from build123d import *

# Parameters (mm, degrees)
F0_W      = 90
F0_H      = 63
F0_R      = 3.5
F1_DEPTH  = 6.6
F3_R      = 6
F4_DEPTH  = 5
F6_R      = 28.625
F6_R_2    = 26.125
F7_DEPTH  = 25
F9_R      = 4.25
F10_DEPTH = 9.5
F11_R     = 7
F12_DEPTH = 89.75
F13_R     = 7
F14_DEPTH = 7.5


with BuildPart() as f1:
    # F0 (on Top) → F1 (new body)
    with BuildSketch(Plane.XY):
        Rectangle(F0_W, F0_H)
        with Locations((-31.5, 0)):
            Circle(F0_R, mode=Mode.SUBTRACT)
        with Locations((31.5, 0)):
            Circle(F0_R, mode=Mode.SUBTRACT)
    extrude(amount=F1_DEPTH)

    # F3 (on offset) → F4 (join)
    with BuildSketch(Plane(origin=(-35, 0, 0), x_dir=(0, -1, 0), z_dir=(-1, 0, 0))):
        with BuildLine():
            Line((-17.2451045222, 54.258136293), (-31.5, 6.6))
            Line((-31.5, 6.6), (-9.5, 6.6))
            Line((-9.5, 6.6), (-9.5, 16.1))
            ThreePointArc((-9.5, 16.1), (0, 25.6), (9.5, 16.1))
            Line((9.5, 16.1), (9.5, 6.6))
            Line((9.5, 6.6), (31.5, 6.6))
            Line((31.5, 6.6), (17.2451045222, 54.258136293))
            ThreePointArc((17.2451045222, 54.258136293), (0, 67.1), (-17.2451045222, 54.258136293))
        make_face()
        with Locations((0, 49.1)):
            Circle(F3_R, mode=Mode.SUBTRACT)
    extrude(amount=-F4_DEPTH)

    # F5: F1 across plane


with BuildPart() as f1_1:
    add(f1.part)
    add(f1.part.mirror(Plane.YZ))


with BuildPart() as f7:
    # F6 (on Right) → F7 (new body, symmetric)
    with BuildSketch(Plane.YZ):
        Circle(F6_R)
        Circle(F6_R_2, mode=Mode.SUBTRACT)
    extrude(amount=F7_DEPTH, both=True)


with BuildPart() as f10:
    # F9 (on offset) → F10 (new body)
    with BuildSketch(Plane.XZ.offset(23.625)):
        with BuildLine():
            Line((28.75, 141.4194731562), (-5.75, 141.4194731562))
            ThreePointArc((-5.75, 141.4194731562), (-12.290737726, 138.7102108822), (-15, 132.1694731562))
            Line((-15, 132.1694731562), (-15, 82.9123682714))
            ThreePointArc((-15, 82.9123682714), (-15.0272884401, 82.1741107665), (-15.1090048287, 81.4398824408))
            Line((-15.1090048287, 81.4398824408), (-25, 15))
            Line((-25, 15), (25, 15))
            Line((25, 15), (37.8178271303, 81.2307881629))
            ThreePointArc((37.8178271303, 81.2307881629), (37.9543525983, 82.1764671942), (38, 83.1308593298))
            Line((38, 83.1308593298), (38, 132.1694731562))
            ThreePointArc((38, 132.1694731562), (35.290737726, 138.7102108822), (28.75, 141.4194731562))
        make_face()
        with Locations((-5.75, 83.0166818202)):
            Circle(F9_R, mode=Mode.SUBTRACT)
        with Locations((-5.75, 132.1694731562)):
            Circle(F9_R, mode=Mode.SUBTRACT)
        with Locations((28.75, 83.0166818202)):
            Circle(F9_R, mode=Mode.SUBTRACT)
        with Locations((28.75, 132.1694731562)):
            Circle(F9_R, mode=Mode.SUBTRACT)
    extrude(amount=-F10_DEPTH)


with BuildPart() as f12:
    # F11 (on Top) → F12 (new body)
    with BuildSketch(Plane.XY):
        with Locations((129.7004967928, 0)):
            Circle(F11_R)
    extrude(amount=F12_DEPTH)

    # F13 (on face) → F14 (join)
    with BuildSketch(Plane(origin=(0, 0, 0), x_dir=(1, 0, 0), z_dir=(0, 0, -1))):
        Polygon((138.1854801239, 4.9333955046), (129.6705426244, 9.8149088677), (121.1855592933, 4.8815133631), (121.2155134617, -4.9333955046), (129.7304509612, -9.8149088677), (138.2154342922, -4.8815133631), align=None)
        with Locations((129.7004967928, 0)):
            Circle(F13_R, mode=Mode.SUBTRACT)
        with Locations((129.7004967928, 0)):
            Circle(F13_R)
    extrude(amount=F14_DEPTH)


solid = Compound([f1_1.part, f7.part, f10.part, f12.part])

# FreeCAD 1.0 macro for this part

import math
import FreeCAD as App
import Part
import Sketcher
Q = App.Units.Quantity

doc = App.newDocument("Part")
body = doc.addObject("PartDesign::Body", "Body")

sketch1 = doc.addObject("Sketcher::SketchObject", "Sketch")
body.addObject(sketch1)
sketch1.AttachmentSupport = (doc.XY_Plane, [""])
sketch1.MapMode = "FlatFace"
sketch1.addGeometry(Part.LineSegment(App.Vector(-45, 31.5, 0), App.Vector(-45, -31.5, 0)), False)
sketch1.addGeometry(Part.LineSegment(App.Vector(-45, -31.5, 0), App.Vector(45, -31.5, 0)), False)
sketch1.addGeometry(Part.LineSegment(App.Vector(45, -31.5, 0), App.Vector(45, 31.5, 0)), False)
sketch1.addGeometry(Part.LineSegment(App.Vector(45, 31.5, 0), App.Vector(-45, 31.5, 0)), False)
sketch1.addGeometry(Part.Circle(App.Vector(-31.5, 0, 0), App.Vector(0, 0, 1), 3.5), False)
sketch1.addGeometry(Part.Circle(App.Vector(31.5, 0, 0), App.Vector(0, 0, 1), 3.5), False)
sketch1.addConstraint(Sketcher.Constraint("Coincident", 0, 2, 1, 1))
sketch1.addConstraint(Sketcher.Constraint("Coincident", 1, 2, 2, 1))
sketch1.addConstraint(Sketcher.Constraint("Coincident", 2, 2, 3, 1))
sketch1.addConstraint(Sketcher.Constraint("Coincident", 3, 2, 0, 1))
sketch1.addConstraint(Sketcher.Constraint("Vertical", 0))
sketch1.addConstraint(Sketcher.Constraint("Horizontal", 1))
sketch1.addConstraint(Sketcher.Constraint("Vertical", 2))
sketch1.addConstraint(Sketcher.Constraint("Horizontal", 3))
sketch1.addConstraint(Sketcher.Constraint("Equal", 4, 5))
sketch1.addConstraint(Sketcher.Constraint("Symmetric", 4, 3, 5, 3, -1, 1))
sketch1.addConstraint(Sketcher.Constraint("Symmetric", 0, 2, 2, 2, -1, 1))
sketch1.addConstraint(Sketcher.Constraint("PointOnObject", 4, 3, -1))
sketch1.addConstraint(Sketcher.Constraint("Diameter", 4, Q("7 mm")))
sketch1.addConstraint(Sketcher.Constraint("DistanceX", 1, 1, 1, 2, Q("90 mm")))
sketch1.addConstraint(Sketcher.Constraint("DistanceY", 0, 2, 0, 1, Q("63 mm")))
sketch1.addConstraint(Sketcher.Constraint("DistanceX", 4, 3, 5, 3, Q("63 mm")))
pad1 = doc.addObject("PartDesign::Pad", "Pad")
body.addObject(pad1)
pad1.Profile = sketch1
pad1.Length = 6.6

sketch2 = doc.addObject("Sketcher::SketchObject", "Sketch001")
body.addObject(sketch2)
sketch2.AttachmentSupport = (doc.YZ_Plane, [""])
sketch2.MapMode = "FlatFace"
sketch2.AttachmentOffset = App.Placement(App.Vector(0, 0, -35), App.Rotation())
sketch2.addGeometry(Part.LineSegment(App.Vector(17, 54, 0), App.Vector(32, 7, 0)), False)
sketch2.addGeometry(Part.LineSegment(App.Vector(32, 7, 0), App.Vector(10, 7, 0)), False)
sketch2.addGeometry(Part.LineSegment(App.Vector(10, 7, 0), App.Vector(10, 16, 0)), False)
sketch2.addGeometry(Part.ArcOfCircle(Part.Circle(App.Vector(0, 16, 0), App.Vector(0, 0, 1), 10), math.radians(0), math.radians(180)), False)
sketch2.addGeometry(Part.LineSegment(App.Vector(-10, 16, 0), App.Vector(-10, 7, 0)), False)
sketch2.addGeometry(Part.LineSegment(App.Vector(-10, 7, 0), App.Vector(-32, 7, 0)), False)
sketch2.addGeometry(Part.LineSegment(App.Vector(-32, 7, 0), App.Vector(-17, 54, 0)), False)
sketch2.addGeometry(Part.ArcOfCircle(Part.Circle(App.Vector(0, 49, 0), App.Vector(0, 0, 1), 18), math.radians(17), math.radians(163)), False)
sketch2.addGeometry(Part.Circle(App.Vector(0, 49, 0), App.Vector(0, 0, 1), 6), False)
sketch2.addConstraint(Sketcher.Constraint("Coincident", 0, 2, 1, 1))
sketch2.addConstraint(Sketcher.Constraint("Coincident", 1, 2, 2, 1))
sketch2.addConstraint(Sketcher.Constraint("Tangent", 2, 2, 3, 1))
sketch2.addConstraint(Sketcher.Constraint("Tangent", 3, 2, 4, 1))
sketch2.addConstraint(Sketcher.Constraint("Coincident", 4, 2, 5, 1))
sketch2.addConstraint(Sketcher.Constraint("Coincident", 5, 2, 6, 1))
sketch2.addConstraint(Sketcher.Constraint("Tangent", 6, 2, 7, 2))
sketch2.addConstraint(Sketcher.Constraint("Tangent", 7, 1, 0, 1))
sketch2.addConstraint(Sketcher.Constraint("Horizontal", 1))
sketch2.addConstraint(Sketcher.Constraint("Vertical", 2))
sketch2.addConstraint(Sketcher.Constraint("Vertical", 4))
sketch2.addConstraint(Sketcher.Constraint("Horizontal", 5))
sketch2.addConstraint(Sketcher.Constraint("Coincident", 8, 3, 7, 3))
sketch2.addConstraint(Sketcher.Constraint("Symmetric", 1, 2, 4, 2, -2))
sketch2.addConstraint(Sketcher.Constraint("Symmetric", 6, 2, 7, 1, -2))
sketch2.addConstraint(Sketcher.Constraint("Diameter", 8, Q("12 mm")))
sketch2.addConstraint(Sketcher.Constraint("Radius", 7, Q("18 mm")))
sketch2.addConstraint(Sketcher.Constraint("Radius", 3, Q("9.5 mm")))
sketch2.addConstraint(Sketcher.Constraint("DistanceX", 1, 2, 1, 1, Q("22 mm")))
sketch2.addConstraint(Sketcher.Constraint("DistanceY", 2, 1, 2, 2, Q("9.5 mm")))
sketch2.addConstraint(Sketcher.Constraint("DistanceY", 3, 3, 7, 3, Q("33 mm")))
sketch2.addConstraint(Sketcher.Constraint("DistanceY", -1, 1, 3, 3, Q("16.1 mm")))
pad2 = doc.addObject("PartDesign::Pad", "Pad001")
body.addObject(pad2)
pad2.Profile = sketch2
pad2.Length = 5
body2 = doc.addObject("PartDesign::Body", "Body001")
doc.recompute()

body2.BaseFeature = body
doc.recompute()

mirroring = doc.addObject("Part::Mirroring", "Mirroring")
mirroring.Source = body
mirroring.Base = App.Vector(0, 0, 0)
mirroring.Normal = App.Vector(1, 0, 0)
body3 = doc.addObject("PartDesign::Body", "Body002")
body3.BaseFeature = mirroring
boolean = doc.addObject("PartDesign::Boolean", "Boolean")
body2.addObject(boolean)
boolean.Type = "Fuse"
boolean.addObjects([body3])
doc.recompute()
body4 = doc.addObject("PartDesign::Body", "Body003")

sketch3 = doc.addObject("Sketcher::SketchObject", "Sketch002")
body4.addObject(sketch3)
sketch3.AttachmentSupport = (doc.getObject("YZ_Plane003"), [""])
sketch3.MapMode = "FlatFace"
sketch3.addGeometry(Part.Circle(App.Vector(0, 0, 0), App.Vector(0, 0, 1), 29), False)
sketch3.addGeometry(Part.Circle(App.Vector(0, 0, 0), App.Vector(0, 0, 1), 26), False)
sketch3.addConstraint(Sketcher.Constraint("Coincident", 0, 3, -1, 1))
sketch3.addConstraint(Sketcher.Constraint("Coincident", 1, 3, -1, 1))
sketch3.addConstraint(Sketcher.Constraint("Diameter", 0, Q("57.25 mm")))
sketch3.addConstraint(Sketcher.Constraint("Diameter", 1, Q("52.25 mm")))
pad3 = doc.addObject("PartDesign::Pad", "Pad002")
body4.addObject(pad3)
pad3.Profile = sketch3
pad3.Length = 50
pad3.Midplane = True
body5 = doc.addObject("PartDesign::Body", "Body004")

sketch4 = doc.addObject("Sketcher::SketchObject", "Sketch003")
body5.addObject(sketch4)
sketch4.AttachmentSupport = (doc.getObject("XZ_Plane004"), [""])
sketch4.MapMode = "FlatFace"
sketch4.AttachmentOffset = App.Placement(App.Vector(0, 0, 23.625), App.Rotation())
sketch4.addGeometry(Part.LineSegment(App.Vector(28.8, 141.4, 0), App.Vector(-5.8, 141.4, 0)), False)
sketch4.addGeometry(Part.ArcOfCircle(Part.Circle(App.Vector(-5.8, 132.2, 0), App.Vector(0, 0, 1), 9.2), math.radians(90), math.radians(180)), False)
sketch4.addGeometry(Part.LineSegment(App.Vector(-15, 132.2, 0), App.Vector(-15, 82.9, 0)), False)
sketch4.addGeometry(Part.ArcOfCircle(Part.Circle(App.Vector(-25, 82.9, 0), App.Vector(0, 0, 1), 10), math.radians(-8.47), math.radians(0)), False)
sketch4.addGeometry(Part.LineSegment(App.Vector(-15.1, 81.4, 0), App.Vector(-25, 15, 0)), False)
sketch4.addGeometry(Part.LineSegment(App.Vector(-25, 15, 0), App.Vector(25, 15, 0)), False)
sketch4.addGeometry(Part.LineSegment(App.Vector(25, 15, 0), App.Vector(37.8, 81.2, 0)), False)
sketch4.addGeometry(Part.ArcOfCircle(Part.Circle(App.Vector(28, 83.1, 0), App.Vector(0, 0, 1), 10), math.radians(-10.95), math.radians(0)), False)
sketch4.addGeometry(Part.LineSegment(App.Vector(38, 83.1, 0), App.Vector(38, 132.2, 0)), False)
sketch4.addGeometry(Part.ArcOfCircle(Part.Circle(App.Vector(28.8, 132.2, 0), App.Vector(0, 0, 1), 9.2), math.radians(0), math.radians(90)), False)
sketch4.addGeometry(Part.Circle(App.Vector(-5.8, 83, 0), App.Vector(0, 0, 1), 4.2), False)
sketch4.addGeometry(Part.Circle(App.Vector(28.8, 83, 0), App.Vector(0, 0, 1), 4.2), False)
sketch4.addGeometry(Part.Circle(App.Vector(-5.8, 132.2, 0), App.Vector(0, 0, 1), 4.2), False)
sketch4.addGeometry(Part.Circle(App.Vector(28.8, 132.2, 0), App.Vector(0, 0, 1), 4.2), False)
sketch4.addConstraint(Sketcher.Constraint("Tangent", 0, 2, 1, 1))
sketch4.addConstraint(Sketcher.Constraint("Tangent", 1, 2, 2, 1))
sketch4.addConstraint(Sketcher.Constraint("Tangent", 2, 2, 3, 2))
sketch4.addConstraint(Sketcher.Constraint("Tangent", 3, 1, 4, 1))
sketch4.addConstraint(Sketcher.Constraint("Coincident", 4, 2, 5, 1))
sketch4.addConstraint(Sketcher.Constraint("Coincident", 5, 2, 6, 1))
sketch4.addConstraint(Sketcher.Constraint("Tangent", 6, 2, 7, 1))
sketch4.addConstraint(Sketcher.Constraint("Tangent", 7, 2, 8, 1))
sketch4.addConstraint(Sketcher.Constraint("Tangent", 8, 2, 9, 1))
sketch4.addConstraint(Sketcher.Constraint("Tangent", 9, 2, 0, 1))
sketch4.addConstraint(Sketcher.Constraint("Horizontal", 0))
sketch4.addConstraint(Sketcher.Constraint("Vertical", 2))
sketch4.addConstraint(Sketcher.Constraint("Horizontal", 5))
sketch4.addConstraint(Sketcher.Constraint("Vertical", 8))
sketch4.addConstraint(Sketcher.Constraint("Coincident", 12, 3, 1, 3))
sketch4.addConstraint(Sketcher.Constraint("Coincident", 13, 3, 9, 3))
sketch4.addConstraint(Sketcher.Constraint("Equal", 3, 7))
sketch4.addConstraint(Sketcher.Constraint("Equal", 1, 9))
sketch4.addConstraint(Sketcher.Constraint("Equal", 10, 11))
sketch4.addConstraint(Sketcher.Constraint("Equal", 11, 12))
sketch4.addConstraint(Sketcher.Constraint("Equal", 12, 13))
sketch4.addConstraint(Sketcher.Constraint("Horizontal", 10, 3, 11, 3))
sketch4.addConstraint(Sketcher.Constraint("Vertical", 1, 3, 10, 3))
sketch4.addConstraint(Sketcher.Constraint("Vertical", 9, 3, 11, 3))
sketch4.addConstraint(Sketcher.Constraint("Vertical", 3, 3, 4, 2))
sketch4.addConstraint(Sketcher.Constraint("Radius", 3, Q("10 mm")))
sketch4.addConstraint(Sketcher.Constraint("Diameter", 10, Q("8.5 mm")))
sketch4.addConstraint(Sketcher.Constraint("DistanceX", 5, 1, 5, 2, Q("50 mm")))
sketch4.addConstraint(Sketcher.Constraint("Radius", 1, Q("9.25 mm")))
sketch4.addConstraint(Sketcher.Constraint("DistanceX", 0, 2, 0, 1, Q("34.5 mm")))
sketch4.addConstraint(Sketcher.Constraint("DistanceX", 3, 3, -1, 1, Q("25 mm")))
sketch4.addConstraint(Sketcher.Constraint("DistanceY", -1, 1, 4, 2, Q("15 mm")))
sketch4.addConstraint(Sketcher.Constraint("DistanceY", 3, 1, 10, 3, Q("1.576799 mm")))
sketch4.addConstraint(Sketcher.Constraint("Distance", 4, Q("67.172091 mm")))
sketch4.addConstraint(Sketcher.Constraint("Distance", 6, Q("67.459721 mm")))
sketch4.addConstraint(Sketcher.Constraint("DistanceY", 2, 2, 2, 1, Q("49.257105 mm")))
pad4 = doc.addObject("PartDesign::Pad", "Pad003")
body5.addObject(pad4)
pad4.Profile = sketch4
pad4.Length = 9.5
pad4.Reversed = True
body6 = doc.addObject("PartDesign::Body", "Body005")

sketch5 = doc.addObject("Sketcher::SketchObject", "Sketch004")
body6.addObject(sketch5)
sketch5.AttachmentSupport = (doc.getObject("XY_Plane005"), [""])
sketch5.MapMode = "FlatFace"
sketch5.addGeometry(Part.Circle(App.Vector(130, 0, 0), App.Vector(0, 0, 1), 7), False)
sketch5.addConstraint(Sketcher.Constraint("PointOnObject", 0, 3, -1))
sketch5.addConstraint(Sketcher.Constraint("Diameter", 0, Q("14 mm")))
sketch5.addConstraint(Sketcher.Constraint("DistanceX", -1, 1, 0, 3, Q("129.700497 mm")))
pad5 = doc.addObject("PartDesign::Pad", "Pad004")
body6.addObject(pad5)
pad5.Profile = sketch5
pad5.Length = 89.75

sketch6 = doc.addObject("Sketcher::SketchObject", "Sketch005")
body6.addObject(sketch6)
sketch6.AttachmentSupport = (doc.getObject("XY_Plane005"), [""])
sketch6.MapMode = "FlatFace"
sketch6.addGeometry(Part.LineSegment(App.Vector(138, -5, 0), App.Vector(130, -10, 0)), False)
sketch6.addGeometry(Part.LineSegment(App.Vector(130, -10, 0), App.Vector(121, -5, 0)), False)
sketch6.addGeometry(Part.LineSegment(App.Vector(121, -5, 0), App.Vector(121, 5, 0)), False)
sketch6.addGeometry(Part.LineSegment(App.Vector(121, 5, 0), App.Vector(130, 10, 0)), False)
sketch6.addGeometry(Part.LineSegment(App.Vector(130, 10, 0), App.Vector(138, 5, 0)), False)
sketch6.addGeometry(Part.LineSegment(App.Vector(138, 5, 0), App.Vector(138, -5, 0)), False)
sketch6.addConstraint(Sketcher.Constraint("Coincident", 0, 2, 1, 1))
sketch6.addConstraint(Sketcher.Constraint("Coincident", 1, 2, 2, 1))
sketch6.addConstraint(Sketcher.Constraint("Coincident", 2, 2, 3, 1))
sketch6.addConstraint(Sketcher.Constraint("Coincident", 3, 2, 4, 1))
sketch6.addConstraint(Sketcher.Constraint("Coincident", 4, 2, 5, 1))
sketch6.addConstraint(Sketcher.Constraint("Coincident", 5, 2, 0, 1))
sketch6.addConstraint(Sketcher.Constraint("Parallel", 0, 3))
sketch6.addConstraint(Sketcher.Constraint("Parallel", 1, 4))
sketch6.addConstraint(Sketcher.Constraint("Parallel", 2, 5))
sketch6.addConstraint(Sketcher.Constraint("Equal", 0, 1))
sketch6.addConstraint(Sketcher.Constraint("Equal", 1, 2))
sketch6.addConstraint(Sketcher.Constraint("Equal", 2, 3))
sketch6.addConstraint(Sketcher.Constraint("DistanceY", 0, 2, -1, 1, Q("9.814909 mm")))
sketch6.addConstraint(Sketcher.Constraint("DistanceX", -1, 1, 1, 2, Q("121.185559 mm")))
sketch6.addConstraint(Sketcher.Constraint("DistanceX", -1, 1, 3, 2, Q("129.730451 mm")))
sketch6.addConstraint(Sketcher.Constraint("DistanceY", -1, 1, 3, 2, Q("9.814909 mm")))
sketch6.addConstraint(Sketcher.Constraint("DistanceX", -1, 1, 5, 2, Q("138.18548 mm")))
sketch6.addConstraint(Sketcher.Constraint("DistanceX", 0, 2, 3, 2, Q("0.059908 mm")))
pad6 = doc.addObject("PartDesign::Pad", "Pad005")
body6.addObject(pad6)
pad6.Profile = sketch6
pad6.Length = 7.5
pad6.Reversed = True
mirroring.Visibility = False

doc.recompute()
